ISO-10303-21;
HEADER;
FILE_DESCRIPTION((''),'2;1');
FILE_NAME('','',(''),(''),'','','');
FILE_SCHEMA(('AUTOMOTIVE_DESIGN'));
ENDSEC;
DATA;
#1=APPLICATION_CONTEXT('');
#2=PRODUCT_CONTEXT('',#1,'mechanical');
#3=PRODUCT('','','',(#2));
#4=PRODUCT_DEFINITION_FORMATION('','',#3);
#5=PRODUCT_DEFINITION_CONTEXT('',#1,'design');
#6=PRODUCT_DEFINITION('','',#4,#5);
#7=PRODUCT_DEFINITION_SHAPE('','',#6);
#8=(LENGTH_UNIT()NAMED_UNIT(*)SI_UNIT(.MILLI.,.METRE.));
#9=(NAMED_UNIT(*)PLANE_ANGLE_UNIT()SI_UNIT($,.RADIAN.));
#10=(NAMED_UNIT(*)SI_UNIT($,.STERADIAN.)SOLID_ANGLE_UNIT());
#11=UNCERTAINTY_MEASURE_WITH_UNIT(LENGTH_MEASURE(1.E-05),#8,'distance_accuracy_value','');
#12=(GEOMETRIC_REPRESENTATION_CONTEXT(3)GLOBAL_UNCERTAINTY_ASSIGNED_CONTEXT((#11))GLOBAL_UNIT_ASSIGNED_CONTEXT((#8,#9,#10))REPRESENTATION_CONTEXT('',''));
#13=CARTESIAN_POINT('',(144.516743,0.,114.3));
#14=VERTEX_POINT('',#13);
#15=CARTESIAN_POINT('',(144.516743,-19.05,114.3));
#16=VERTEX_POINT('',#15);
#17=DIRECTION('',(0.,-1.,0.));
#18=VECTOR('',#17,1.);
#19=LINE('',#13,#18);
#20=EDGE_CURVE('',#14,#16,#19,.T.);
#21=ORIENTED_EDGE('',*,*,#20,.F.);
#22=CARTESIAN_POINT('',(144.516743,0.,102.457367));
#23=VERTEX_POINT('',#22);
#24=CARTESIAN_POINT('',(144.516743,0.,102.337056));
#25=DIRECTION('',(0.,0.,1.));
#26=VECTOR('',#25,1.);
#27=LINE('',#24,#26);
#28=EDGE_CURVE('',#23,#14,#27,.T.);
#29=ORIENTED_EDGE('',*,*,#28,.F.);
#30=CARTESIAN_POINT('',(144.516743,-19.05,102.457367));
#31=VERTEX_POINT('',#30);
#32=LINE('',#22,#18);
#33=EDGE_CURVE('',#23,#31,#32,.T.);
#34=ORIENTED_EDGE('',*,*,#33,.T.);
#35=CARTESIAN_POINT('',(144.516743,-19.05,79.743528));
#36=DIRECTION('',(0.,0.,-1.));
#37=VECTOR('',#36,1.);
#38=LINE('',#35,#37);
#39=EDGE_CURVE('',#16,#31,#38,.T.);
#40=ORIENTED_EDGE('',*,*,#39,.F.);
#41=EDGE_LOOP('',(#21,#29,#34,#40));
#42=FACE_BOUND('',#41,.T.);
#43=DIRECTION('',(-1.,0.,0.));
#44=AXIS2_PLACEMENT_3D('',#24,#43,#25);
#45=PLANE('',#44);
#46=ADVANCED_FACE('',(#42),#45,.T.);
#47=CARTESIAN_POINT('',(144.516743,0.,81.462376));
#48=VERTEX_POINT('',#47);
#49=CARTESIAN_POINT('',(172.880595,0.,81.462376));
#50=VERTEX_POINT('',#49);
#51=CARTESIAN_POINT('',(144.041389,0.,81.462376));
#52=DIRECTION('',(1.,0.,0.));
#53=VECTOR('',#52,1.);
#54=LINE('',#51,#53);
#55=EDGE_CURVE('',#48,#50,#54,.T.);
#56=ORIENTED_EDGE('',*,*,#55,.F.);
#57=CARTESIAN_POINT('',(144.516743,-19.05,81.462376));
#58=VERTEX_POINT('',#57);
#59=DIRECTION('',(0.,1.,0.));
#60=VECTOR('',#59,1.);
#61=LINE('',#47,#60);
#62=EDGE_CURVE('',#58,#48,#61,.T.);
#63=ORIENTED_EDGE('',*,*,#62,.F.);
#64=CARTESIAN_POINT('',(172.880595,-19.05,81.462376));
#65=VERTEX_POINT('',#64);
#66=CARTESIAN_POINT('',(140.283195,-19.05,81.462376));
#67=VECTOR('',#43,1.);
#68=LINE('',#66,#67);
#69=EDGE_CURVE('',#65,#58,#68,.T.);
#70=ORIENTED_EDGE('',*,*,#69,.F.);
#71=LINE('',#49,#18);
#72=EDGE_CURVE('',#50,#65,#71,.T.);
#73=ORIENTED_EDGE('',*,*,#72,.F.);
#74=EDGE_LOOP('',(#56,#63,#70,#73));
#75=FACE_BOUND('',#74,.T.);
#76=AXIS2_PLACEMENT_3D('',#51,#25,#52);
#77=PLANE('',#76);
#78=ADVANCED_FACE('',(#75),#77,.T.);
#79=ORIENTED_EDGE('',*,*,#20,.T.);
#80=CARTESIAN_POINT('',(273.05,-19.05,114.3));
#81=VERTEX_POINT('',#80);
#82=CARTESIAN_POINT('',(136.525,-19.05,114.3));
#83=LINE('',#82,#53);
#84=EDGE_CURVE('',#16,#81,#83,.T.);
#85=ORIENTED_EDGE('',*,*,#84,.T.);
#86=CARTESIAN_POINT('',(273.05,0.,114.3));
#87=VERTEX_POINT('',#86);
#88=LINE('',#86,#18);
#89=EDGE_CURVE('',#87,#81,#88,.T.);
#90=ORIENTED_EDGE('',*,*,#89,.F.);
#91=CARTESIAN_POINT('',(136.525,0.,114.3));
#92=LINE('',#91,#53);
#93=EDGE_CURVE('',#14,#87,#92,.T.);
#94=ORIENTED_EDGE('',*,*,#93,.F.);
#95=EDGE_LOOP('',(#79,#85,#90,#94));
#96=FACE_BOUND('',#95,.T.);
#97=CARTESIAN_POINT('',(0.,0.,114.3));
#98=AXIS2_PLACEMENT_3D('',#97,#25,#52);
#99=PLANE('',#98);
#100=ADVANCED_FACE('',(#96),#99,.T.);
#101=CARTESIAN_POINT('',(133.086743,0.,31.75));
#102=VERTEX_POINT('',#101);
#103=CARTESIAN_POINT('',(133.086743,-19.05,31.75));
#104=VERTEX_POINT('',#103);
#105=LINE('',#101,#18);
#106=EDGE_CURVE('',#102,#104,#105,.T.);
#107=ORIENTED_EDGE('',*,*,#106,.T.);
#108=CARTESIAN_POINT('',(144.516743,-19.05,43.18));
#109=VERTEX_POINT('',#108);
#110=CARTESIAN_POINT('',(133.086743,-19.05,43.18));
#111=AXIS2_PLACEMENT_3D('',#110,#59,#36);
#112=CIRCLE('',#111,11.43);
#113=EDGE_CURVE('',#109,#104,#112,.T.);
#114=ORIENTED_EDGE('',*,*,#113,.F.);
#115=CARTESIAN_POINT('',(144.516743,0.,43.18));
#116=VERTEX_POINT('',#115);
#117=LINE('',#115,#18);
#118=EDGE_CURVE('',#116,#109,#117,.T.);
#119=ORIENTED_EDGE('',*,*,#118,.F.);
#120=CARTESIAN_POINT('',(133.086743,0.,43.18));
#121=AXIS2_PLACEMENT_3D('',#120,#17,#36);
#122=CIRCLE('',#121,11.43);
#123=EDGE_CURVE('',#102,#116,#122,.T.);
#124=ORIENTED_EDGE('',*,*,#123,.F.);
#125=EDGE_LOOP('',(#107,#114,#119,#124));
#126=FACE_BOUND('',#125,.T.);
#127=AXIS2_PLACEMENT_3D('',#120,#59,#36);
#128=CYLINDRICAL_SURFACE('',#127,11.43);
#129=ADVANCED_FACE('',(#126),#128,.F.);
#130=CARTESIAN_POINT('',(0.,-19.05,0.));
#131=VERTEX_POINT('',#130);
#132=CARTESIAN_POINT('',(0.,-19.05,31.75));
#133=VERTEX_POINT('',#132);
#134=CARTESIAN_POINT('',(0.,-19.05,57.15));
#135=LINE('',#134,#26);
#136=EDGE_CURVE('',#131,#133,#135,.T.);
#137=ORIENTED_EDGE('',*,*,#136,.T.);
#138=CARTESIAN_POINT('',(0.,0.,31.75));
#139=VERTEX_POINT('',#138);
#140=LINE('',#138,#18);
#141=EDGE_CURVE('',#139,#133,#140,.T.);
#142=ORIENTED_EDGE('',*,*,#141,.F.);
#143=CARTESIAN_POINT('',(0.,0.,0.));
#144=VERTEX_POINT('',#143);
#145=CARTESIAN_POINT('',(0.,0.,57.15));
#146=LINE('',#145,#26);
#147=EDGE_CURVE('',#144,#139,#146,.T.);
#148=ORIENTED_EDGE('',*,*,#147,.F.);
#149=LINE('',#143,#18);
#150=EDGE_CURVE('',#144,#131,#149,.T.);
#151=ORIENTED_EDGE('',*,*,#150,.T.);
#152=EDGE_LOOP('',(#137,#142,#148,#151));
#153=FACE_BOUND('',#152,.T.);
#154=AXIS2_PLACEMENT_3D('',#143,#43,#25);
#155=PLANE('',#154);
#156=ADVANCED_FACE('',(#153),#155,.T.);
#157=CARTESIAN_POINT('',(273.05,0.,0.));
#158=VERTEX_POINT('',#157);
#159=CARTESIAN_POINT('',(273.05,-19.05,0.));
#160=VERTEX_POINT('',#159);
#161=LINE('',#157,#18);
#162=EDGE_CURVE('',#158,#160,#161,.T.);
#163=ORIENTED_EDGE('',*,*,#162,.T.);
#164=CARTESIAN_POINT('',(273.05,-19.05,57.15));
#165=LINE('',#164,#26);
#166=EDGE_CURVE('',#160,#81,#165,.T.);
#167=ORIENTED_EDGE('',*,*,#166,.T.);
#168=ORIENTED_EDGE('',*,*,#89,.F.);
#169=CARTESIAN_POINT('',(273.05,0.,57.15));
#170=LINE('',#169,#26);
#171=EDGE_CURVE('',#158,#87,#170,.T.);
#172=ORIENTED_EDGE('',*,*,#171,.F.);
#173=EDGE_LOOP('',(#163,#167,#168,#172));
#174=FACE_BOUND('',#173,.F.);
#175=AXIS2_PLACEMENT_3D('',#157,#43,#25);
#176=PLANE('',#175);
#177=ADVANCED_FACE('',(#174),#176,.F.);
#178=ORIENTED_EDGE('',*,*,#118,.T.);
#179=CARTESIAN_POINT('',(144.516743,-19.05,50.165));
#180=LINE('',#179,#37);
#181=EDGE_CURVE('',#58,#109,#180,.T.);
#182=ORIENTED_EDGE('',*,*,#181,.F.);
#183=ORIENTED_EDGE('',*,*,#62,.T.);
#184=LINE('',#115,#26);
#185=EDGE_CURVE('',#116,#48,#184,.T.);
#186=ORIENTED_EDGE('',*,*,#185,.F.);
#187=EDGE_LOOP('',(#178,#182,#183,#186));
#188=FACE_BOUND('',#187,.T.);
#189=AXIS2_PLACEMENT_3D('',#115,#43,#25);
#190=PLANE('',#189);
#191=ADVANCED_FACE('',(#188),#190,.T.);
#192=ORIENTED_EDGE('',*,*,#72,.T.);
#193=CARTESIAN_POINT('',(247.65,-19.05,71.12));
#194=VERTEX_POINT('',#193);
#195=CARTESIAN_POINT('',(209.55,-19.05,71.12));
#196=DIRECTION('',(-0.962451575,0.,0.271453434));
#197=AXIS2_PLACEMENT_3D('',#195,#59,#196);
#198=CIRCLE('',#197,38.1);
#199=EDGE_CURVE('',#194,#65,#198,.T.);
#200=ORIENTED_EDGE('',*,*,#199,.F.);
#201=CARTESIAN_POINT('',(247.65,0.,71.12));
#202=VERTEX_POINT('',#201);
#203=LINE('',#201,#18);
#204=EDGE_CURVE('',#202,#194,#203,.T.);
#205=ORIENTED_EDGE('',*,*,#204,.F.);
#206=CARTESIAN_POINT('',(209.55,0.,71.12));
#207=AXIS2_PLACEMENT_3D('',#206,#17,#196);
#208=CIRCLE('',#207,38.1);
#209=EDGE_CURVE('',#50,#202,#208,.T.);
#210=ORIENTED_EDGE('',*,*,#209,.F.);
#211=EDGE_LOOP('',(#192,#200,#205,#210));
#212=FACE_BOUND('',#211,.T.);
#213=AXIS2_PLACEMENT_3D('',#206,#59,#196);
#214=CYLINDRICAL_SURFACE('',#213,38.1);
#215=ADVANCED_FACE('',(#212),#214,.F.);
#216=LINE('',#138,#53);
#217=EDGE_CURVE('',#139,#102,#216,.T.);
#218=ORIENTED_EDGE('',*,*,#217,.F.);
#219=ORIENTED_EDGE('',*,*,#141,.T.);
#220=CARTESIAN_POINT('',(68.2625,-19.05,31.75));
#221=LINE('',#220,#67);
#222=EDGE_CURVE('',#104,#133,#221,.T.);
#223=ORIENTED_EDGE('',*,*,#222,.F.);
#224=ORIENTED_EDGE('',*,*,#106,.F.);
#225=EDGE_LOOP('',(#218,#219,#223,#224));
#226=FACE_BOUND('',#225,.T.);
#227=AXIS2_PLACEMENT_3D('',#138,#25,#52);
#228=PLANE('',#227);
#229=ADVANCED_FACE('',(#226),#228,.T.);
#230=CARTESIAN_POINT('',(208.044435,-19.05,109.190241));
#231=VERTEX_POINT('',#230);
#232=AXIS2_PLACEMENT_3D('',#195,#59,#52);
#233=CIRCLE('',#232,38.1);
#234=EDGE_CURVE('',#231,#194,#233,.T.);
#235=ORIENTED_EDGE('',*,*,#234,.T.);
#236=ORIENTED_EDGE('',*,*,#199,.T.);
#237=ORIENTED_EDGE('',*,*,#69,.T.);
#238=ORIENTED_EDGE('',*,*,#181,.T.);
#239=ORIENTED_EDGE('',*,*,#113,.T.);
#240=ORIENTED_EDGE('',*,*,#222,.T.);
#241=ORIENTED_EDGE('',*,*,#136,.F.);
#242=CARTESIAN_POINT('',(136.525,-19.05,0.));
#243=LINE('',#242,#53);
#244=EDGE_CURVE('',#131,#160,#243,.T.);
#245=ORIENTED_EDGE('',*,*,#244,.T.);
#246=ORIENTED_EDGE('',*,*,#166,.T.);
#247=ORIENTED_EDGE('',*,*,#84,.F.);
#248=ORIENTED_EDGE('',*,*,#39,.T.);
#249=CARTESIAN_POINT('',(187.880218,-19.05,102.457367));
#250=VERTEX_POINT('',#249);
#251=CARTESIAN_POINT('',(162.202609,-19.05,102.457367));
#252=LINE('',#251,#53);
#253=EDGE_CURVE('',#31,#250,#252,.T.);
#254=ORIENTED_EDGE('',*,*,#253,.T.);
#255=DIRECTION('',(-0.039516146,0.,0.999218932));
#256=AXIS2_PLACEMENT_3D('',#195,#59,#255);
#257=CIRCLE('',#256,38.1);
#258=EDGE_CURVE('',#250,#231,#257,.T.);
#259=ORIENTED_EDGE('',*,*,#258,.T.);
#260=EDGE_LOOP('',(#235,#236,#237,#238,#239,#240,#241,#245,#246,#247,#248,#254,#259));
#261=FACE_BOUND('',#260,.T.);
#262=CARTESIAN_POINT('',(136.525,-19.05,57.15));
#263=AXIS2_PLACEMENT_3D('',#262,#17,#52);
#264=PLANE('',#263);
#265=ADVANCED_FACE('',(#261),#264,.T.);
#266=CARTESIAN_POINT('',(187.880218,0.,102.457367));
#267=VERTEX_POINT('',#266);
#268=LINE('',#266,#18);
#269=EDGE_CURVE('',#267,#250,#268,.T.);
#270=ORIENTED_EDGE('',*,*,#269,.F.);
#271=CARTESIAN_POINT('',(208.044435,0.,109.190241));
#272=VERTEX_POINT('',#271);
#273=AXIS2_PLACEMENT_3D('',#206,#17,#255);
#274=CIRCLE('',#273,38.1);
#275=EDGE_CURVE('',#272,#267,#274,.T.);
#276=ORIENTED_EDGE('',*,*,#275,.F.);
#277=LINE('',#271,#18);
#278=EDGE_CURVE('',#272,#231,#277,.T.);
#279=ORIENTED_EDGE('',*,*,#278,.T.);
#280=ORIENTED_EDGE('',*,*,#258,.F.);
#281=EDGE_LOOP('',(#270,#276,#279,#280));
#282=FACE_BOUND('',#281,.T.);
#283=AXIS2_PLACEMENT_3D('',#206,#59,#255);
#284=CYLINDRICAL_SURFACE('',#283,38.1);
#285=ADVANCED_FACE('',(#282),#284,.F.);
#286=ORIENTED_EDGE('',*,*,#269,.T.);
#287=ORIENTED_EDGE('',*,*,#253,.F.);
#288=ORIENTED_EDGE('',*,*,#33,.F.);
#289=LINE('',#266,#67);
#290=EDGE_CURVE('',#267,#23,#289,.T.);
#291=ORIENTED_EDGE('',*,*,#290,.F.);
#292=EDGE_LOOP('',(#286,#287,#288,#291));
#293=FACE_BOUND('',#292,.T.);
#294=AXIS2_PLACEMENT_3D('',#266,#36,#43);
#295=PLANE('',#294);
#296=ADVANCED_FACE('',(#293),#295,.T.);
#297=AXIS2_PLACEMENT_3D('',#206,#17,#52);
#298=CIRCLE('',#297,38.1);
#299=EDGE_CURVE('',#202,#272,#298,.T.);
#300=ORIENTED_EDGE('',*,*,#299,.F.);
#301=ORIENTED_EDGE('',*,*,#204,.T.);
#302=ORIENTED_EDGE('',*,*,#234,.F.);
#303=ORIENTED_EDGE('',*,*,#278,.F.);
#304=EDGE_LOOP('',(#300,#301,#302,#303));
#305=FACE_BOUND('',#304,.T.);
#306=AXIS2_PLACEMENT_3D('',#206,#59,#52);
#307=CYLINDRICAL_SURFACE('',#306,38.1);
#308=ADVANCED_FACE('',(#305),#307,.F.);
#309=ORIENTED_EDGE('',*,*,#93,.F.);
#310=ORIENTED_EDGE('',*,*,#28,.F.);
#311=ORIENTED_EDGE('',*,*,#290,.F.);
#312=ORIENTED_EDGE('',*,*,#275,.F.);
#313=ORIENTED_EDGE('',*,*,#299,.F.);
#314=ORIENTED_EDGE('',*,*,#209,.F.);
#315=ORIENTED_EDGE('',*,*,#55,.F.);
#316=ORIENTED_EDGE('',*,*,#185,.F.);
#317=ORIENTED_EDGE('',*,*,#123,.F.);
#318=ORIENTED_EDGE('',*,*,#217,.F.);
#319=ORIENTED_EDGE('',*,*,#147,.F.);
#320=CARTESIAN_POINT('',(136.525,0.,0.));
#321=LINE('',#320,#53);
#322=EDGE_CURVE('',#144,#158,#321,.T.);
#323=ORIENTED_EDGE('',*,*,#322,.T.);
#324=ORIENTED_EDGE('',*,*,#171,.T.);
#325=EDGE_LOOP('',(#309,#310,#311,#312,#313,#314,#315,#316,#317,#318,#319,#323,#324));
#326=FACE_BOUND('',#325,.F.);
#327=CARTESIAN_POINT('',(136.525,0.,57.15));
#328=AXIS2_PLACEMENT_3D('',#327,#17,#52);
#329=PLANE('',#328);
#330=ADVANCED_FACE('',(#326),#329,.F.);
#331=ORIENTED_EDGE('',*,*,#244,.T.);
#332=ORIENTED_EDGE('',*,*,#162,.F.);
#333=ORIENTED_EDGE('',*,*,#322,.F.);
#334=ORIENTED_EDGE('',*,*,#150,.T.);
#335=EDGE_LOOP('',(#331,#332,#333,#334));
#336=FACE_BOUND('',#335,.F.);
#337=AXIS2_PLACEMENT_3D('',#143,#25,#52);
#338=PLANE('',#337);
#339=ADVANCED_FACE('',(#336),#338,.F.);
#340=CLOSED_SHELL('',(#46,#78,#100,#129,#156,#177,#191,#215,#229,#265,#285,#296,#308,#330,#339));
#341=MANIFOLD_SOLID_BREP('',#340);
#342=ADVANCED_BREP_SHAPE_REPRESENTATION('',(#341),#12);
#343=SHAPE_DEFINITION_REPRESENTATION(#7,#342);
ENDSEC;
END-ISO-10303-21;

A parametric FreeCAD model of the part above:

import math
import FreeCAD as App
import Part
import Sketcher
Q = App.Units.Quantity


def add_polygon(sketch, points):
    """Adds a closed chain of lines whose ends are joined by coincident constraints."""
    first, n = sketch.GeometryCount, len(points)
    for a, b in zip(points, points[1:] + points[:1]):
        sketch.addGeometry(Part.LineSegment(App.Vector(*a, 0), App.Vector(*b, 0)), False)
    for i in range(n):
        sketch.addConstraint(Sketcher.Constraint("Coincident", first + i, 2, first + (i + 1) % n, 1))

doc = App.newDocument("Part")
body = doc.addObject("PartDesign::Body", "Body")

# Sketch on XZ plane
sketch1 = body.newObject("Sketcher::SketchObject", "Sketch")
sketch1.AttachmentSupport = (doc.getObject("XZ_Plane"), [""])
sketch1.MapMode = "FlatFace"
add_polygon(sketch1, [(0, 114.3), (0, 0), (273.05, 0), (273.05, 114.3)])  # lines 0-3
sketch1.addConstraint([
    Sketcher.Constraint("Vertical", 0),
    Sketcher.Constraint("Horizontal", 1),
    Sketcher.Constraint("Vertical", 2),
    Sketcher.Constraint("Horizontal", 3),
    Sketcher.Constraint("Coincident", 0, 2, -1, 1),
    Sketcher.Constraint("DistanceY", 0, 2, 0, 1, Q("4.5 in")),
    Sketcher.Constraint("DistanceX", 1, 1, 1, 2, Q("10.75 in")),
])
pad1 = body.newObject("PartDesign::Pad", "Pad")
pad1.Profile = sketch1
pad1.Length = Q("0.75 in")

# Sketch on XZ plane
sketch2 = body.newObject("Sketcher::SketchObject", "Sketch001")
sketch2.AttachmentSupport = (doc.getObject("XZ_Plane"), [""])
sketch2.MapMode = "FlatFace"
sketch2.addGeometry([
    Part.LineSegment(App.Vector(144.516743, 115.037056, 0), App.Vector(0, 114.3, 0)),  # 0
    Part.LineSegment(App.Vector(0, 114.3, 0), App.Vector(0, 31.75, 0)),  # 1
    Part.LineSegment(App.Vector(0, 31.75, 0), App.Vector(133.086743, 31.75, 0)),  # 2
    Part.ArcOfCircle(Part.Circle(App.Vector(133.086743, 43.18, 0), App.Vector(0, 0, 1), 11.43), math.radians(-90), math.radians(0)),  # 3
    Part.LineSegment(App.Vector(144.516743, 43.18, 0), App.Vector(144.516743, 82.55, 0)),  # 4
    Part.LineSegment(App.Vector(144.516743, 82.55, 0), App.Vector(157.216743, 82.55, 0)),  # 5
    Part.LineSegment(App.Vector(157.216743, 82.55, 0), App.Vector(157.216743, 102.337056, 0)),  # 6
    Part.LineSegment(App.Vector(157.216743, 102.337056, 0), App.Vector(144.516743, 102.337056, 0)),  # 7
    Part.LineSegment(App.Vector(144.516743, 102.337056, 0), App.Vector(144.516743, 115.037056, 0)),  # 8
], False)
sketch2.addConstraint([
    Sketcher.Constraint("Coincident", 0, 2, 1, 1),
    Sketcher.Constraint("Coincident", 1, 2, 2, 1),
    Sketcher.Constraint("Tangent", 2, 2, 3, 1),
    Sketcher.Constraint("Tangent", 3, 2, 4, 1),
    Sketcher.Constraint("Coincident", 4, 2, 5, 1),
    Sketcher.Constraint("Coincident", 5, 2, 6, 1),
    Sketcher.Constraint("Coincident", 6, 2, 7, 1),
    Sketcher.Constraint("Coincident", 7, 2, 8, 1),
    Sketcher.Constraint("Coincident", 8, 2, 0, 1),
    Sketcher.Constraint("Vertical", 1),
    Sketcher.Constraint("Horizontal", 2),
    Sketcher.Constraint("Vertical", 4),
    Sketcher.Constraint("Horizontal", 5),
    Sketcher.Constraint("Vertical", 6),
    Sketcher.Constraint("Horizontal", 7),
    Sketcher.Constraint("Vertical", 8),
    Sketcher.Constraint("PointOnObject", 0, 2, -2),
    Sketcher.Constraint("Vertical", 4, 2, 7, 2),
    Sketcher.Constraint("Equal", 7, 8),
    Sketcher.Constraint("Radius", 3, Q("0.45 in")),
    Sketcher.Constraint("DistanceX", 5, 1, 5, 2, Q("0.5 in")),
    Sketcher.Constraint("DistanceY", 2, 2, 4, 2, Q("2 in")),
    Sketcher.Constraint("DistanceY", 1, 2, 1, 1, Q("3.25 in")),
    Sketcher.Constraint("DistanceY", -1, 1, 3, 3, Q("1.7 in")),
    Sketcher.Constraint("DistanceX", 2, 1, 2, 2, 133.086743),
    Sketcher.Constraint("DistanceY", 6, 1, 6, 2, 19.787056),
])
pocket1 = body.newObject("PartDesign::Pocket", "Pocket")
pocket1.Profile = sketch2
pocket1.Length = Q("1 in")
pocket1.Reversed = True

# Sketch on XZ plane
sketch3 = body.newObject("Sketcher::SketchObject", "Sketch002")
sketch3.AttachmentSupport = (doc.getObject("XZ_Plane"), [""])
sketch3.MapMode = "FlatFace"
sketch3.addGeometry([
    Part.ArcOfCircle(Part.Circle(App.Vector(209.55, 71.12, 0), App.Vector(0, 0, 1), 38.1), math.radians(164.249227), math.radians(360)),  # 0
    Part.ArcOfCircle(Part.Circle(App.Vector(209.55, 71.12, 0), App.Vector(0, 0, 1), 38.1), math.radians(0), math.radians(92.264698)),  # 1
    Part.ArcOfCircle(Part.Circle(App.Vector(209.55, 71.12, 0), App.Vector(0, 0, 1), 38.1), math.radians(92.264698), math.radians(124.663849)),  # 2
    Part.LineSegment(App.Vector(187.880218, 102.457367, 0), App.Vector(144.041389, 102.457367, 0)),  # 3
    Part.LineSegment(App.Vector(144.041389, 102.457367, 0), App.Vector(144.041389, 81.462376, 0)),  # 4
    Part.LineSegment(App.Vector(144.041389, 81.462376, 0), App.Vector(172.880595, 81.462376, 0)),  # 5
], False)
sketch3.addConstraint([
    Sketcher.Constraint("Tangent", 0, 2, 1, 1),
    Sketcher.Constraint("Tangent", 1, 2, 2, 1),
    Sketcher.Constraint("Coincident", 2, 2, 3, 1),
    Sketcher.Constraint("Coincident", 3, 2, 4, 1),
    Sketcher.Constraint("Coincident", 4, 2, 5, 1),
    Sketcher.Constraint("Coincident", 5, 2, 0, 1),
    Sketcher.Constraint("Horizontal", 3),
    Sketcher.Constraint("Vertical", 4),
    Sketcher.Constraint("Horizontal", 5),
    Sketcher.Constraint("Coincident", 2, 3, 0, 3),
    Sketcher.Constraint("Horizontal", 2, 3, 0, 2),
    Sketcher.Constraint("Radius", 0, Q("1.5 in")),
    Sketcher.Constraint("DistanceY", -1, 1, 0, 3, Q("2.8 in")),
    Sketcher.Constraint("DistanceX", -1, 1, 0, 3, Q("8.25 in")),
    Sketcher.Constraint("DistanceX", 3, 2, 3, 1, 43.838829),
    Sketcher.Constraint("DistanceY", 4, 2, 4, 1, 20.994991),
    Sketcher.Constraint("DistanceX", 5, 1, 5, 2, 28.839206),
    Sketcher.Constraint("DistanceY", -1, 1, 1, 2, 109.190241),
])
pocket2 = body.newObject("PartDesign::Pocket", "Pocket001")
pocket2.Profile = sketch3
pocket2.Length = Q("1 in")
pocket2.Reversed = True

doc.recompute()
